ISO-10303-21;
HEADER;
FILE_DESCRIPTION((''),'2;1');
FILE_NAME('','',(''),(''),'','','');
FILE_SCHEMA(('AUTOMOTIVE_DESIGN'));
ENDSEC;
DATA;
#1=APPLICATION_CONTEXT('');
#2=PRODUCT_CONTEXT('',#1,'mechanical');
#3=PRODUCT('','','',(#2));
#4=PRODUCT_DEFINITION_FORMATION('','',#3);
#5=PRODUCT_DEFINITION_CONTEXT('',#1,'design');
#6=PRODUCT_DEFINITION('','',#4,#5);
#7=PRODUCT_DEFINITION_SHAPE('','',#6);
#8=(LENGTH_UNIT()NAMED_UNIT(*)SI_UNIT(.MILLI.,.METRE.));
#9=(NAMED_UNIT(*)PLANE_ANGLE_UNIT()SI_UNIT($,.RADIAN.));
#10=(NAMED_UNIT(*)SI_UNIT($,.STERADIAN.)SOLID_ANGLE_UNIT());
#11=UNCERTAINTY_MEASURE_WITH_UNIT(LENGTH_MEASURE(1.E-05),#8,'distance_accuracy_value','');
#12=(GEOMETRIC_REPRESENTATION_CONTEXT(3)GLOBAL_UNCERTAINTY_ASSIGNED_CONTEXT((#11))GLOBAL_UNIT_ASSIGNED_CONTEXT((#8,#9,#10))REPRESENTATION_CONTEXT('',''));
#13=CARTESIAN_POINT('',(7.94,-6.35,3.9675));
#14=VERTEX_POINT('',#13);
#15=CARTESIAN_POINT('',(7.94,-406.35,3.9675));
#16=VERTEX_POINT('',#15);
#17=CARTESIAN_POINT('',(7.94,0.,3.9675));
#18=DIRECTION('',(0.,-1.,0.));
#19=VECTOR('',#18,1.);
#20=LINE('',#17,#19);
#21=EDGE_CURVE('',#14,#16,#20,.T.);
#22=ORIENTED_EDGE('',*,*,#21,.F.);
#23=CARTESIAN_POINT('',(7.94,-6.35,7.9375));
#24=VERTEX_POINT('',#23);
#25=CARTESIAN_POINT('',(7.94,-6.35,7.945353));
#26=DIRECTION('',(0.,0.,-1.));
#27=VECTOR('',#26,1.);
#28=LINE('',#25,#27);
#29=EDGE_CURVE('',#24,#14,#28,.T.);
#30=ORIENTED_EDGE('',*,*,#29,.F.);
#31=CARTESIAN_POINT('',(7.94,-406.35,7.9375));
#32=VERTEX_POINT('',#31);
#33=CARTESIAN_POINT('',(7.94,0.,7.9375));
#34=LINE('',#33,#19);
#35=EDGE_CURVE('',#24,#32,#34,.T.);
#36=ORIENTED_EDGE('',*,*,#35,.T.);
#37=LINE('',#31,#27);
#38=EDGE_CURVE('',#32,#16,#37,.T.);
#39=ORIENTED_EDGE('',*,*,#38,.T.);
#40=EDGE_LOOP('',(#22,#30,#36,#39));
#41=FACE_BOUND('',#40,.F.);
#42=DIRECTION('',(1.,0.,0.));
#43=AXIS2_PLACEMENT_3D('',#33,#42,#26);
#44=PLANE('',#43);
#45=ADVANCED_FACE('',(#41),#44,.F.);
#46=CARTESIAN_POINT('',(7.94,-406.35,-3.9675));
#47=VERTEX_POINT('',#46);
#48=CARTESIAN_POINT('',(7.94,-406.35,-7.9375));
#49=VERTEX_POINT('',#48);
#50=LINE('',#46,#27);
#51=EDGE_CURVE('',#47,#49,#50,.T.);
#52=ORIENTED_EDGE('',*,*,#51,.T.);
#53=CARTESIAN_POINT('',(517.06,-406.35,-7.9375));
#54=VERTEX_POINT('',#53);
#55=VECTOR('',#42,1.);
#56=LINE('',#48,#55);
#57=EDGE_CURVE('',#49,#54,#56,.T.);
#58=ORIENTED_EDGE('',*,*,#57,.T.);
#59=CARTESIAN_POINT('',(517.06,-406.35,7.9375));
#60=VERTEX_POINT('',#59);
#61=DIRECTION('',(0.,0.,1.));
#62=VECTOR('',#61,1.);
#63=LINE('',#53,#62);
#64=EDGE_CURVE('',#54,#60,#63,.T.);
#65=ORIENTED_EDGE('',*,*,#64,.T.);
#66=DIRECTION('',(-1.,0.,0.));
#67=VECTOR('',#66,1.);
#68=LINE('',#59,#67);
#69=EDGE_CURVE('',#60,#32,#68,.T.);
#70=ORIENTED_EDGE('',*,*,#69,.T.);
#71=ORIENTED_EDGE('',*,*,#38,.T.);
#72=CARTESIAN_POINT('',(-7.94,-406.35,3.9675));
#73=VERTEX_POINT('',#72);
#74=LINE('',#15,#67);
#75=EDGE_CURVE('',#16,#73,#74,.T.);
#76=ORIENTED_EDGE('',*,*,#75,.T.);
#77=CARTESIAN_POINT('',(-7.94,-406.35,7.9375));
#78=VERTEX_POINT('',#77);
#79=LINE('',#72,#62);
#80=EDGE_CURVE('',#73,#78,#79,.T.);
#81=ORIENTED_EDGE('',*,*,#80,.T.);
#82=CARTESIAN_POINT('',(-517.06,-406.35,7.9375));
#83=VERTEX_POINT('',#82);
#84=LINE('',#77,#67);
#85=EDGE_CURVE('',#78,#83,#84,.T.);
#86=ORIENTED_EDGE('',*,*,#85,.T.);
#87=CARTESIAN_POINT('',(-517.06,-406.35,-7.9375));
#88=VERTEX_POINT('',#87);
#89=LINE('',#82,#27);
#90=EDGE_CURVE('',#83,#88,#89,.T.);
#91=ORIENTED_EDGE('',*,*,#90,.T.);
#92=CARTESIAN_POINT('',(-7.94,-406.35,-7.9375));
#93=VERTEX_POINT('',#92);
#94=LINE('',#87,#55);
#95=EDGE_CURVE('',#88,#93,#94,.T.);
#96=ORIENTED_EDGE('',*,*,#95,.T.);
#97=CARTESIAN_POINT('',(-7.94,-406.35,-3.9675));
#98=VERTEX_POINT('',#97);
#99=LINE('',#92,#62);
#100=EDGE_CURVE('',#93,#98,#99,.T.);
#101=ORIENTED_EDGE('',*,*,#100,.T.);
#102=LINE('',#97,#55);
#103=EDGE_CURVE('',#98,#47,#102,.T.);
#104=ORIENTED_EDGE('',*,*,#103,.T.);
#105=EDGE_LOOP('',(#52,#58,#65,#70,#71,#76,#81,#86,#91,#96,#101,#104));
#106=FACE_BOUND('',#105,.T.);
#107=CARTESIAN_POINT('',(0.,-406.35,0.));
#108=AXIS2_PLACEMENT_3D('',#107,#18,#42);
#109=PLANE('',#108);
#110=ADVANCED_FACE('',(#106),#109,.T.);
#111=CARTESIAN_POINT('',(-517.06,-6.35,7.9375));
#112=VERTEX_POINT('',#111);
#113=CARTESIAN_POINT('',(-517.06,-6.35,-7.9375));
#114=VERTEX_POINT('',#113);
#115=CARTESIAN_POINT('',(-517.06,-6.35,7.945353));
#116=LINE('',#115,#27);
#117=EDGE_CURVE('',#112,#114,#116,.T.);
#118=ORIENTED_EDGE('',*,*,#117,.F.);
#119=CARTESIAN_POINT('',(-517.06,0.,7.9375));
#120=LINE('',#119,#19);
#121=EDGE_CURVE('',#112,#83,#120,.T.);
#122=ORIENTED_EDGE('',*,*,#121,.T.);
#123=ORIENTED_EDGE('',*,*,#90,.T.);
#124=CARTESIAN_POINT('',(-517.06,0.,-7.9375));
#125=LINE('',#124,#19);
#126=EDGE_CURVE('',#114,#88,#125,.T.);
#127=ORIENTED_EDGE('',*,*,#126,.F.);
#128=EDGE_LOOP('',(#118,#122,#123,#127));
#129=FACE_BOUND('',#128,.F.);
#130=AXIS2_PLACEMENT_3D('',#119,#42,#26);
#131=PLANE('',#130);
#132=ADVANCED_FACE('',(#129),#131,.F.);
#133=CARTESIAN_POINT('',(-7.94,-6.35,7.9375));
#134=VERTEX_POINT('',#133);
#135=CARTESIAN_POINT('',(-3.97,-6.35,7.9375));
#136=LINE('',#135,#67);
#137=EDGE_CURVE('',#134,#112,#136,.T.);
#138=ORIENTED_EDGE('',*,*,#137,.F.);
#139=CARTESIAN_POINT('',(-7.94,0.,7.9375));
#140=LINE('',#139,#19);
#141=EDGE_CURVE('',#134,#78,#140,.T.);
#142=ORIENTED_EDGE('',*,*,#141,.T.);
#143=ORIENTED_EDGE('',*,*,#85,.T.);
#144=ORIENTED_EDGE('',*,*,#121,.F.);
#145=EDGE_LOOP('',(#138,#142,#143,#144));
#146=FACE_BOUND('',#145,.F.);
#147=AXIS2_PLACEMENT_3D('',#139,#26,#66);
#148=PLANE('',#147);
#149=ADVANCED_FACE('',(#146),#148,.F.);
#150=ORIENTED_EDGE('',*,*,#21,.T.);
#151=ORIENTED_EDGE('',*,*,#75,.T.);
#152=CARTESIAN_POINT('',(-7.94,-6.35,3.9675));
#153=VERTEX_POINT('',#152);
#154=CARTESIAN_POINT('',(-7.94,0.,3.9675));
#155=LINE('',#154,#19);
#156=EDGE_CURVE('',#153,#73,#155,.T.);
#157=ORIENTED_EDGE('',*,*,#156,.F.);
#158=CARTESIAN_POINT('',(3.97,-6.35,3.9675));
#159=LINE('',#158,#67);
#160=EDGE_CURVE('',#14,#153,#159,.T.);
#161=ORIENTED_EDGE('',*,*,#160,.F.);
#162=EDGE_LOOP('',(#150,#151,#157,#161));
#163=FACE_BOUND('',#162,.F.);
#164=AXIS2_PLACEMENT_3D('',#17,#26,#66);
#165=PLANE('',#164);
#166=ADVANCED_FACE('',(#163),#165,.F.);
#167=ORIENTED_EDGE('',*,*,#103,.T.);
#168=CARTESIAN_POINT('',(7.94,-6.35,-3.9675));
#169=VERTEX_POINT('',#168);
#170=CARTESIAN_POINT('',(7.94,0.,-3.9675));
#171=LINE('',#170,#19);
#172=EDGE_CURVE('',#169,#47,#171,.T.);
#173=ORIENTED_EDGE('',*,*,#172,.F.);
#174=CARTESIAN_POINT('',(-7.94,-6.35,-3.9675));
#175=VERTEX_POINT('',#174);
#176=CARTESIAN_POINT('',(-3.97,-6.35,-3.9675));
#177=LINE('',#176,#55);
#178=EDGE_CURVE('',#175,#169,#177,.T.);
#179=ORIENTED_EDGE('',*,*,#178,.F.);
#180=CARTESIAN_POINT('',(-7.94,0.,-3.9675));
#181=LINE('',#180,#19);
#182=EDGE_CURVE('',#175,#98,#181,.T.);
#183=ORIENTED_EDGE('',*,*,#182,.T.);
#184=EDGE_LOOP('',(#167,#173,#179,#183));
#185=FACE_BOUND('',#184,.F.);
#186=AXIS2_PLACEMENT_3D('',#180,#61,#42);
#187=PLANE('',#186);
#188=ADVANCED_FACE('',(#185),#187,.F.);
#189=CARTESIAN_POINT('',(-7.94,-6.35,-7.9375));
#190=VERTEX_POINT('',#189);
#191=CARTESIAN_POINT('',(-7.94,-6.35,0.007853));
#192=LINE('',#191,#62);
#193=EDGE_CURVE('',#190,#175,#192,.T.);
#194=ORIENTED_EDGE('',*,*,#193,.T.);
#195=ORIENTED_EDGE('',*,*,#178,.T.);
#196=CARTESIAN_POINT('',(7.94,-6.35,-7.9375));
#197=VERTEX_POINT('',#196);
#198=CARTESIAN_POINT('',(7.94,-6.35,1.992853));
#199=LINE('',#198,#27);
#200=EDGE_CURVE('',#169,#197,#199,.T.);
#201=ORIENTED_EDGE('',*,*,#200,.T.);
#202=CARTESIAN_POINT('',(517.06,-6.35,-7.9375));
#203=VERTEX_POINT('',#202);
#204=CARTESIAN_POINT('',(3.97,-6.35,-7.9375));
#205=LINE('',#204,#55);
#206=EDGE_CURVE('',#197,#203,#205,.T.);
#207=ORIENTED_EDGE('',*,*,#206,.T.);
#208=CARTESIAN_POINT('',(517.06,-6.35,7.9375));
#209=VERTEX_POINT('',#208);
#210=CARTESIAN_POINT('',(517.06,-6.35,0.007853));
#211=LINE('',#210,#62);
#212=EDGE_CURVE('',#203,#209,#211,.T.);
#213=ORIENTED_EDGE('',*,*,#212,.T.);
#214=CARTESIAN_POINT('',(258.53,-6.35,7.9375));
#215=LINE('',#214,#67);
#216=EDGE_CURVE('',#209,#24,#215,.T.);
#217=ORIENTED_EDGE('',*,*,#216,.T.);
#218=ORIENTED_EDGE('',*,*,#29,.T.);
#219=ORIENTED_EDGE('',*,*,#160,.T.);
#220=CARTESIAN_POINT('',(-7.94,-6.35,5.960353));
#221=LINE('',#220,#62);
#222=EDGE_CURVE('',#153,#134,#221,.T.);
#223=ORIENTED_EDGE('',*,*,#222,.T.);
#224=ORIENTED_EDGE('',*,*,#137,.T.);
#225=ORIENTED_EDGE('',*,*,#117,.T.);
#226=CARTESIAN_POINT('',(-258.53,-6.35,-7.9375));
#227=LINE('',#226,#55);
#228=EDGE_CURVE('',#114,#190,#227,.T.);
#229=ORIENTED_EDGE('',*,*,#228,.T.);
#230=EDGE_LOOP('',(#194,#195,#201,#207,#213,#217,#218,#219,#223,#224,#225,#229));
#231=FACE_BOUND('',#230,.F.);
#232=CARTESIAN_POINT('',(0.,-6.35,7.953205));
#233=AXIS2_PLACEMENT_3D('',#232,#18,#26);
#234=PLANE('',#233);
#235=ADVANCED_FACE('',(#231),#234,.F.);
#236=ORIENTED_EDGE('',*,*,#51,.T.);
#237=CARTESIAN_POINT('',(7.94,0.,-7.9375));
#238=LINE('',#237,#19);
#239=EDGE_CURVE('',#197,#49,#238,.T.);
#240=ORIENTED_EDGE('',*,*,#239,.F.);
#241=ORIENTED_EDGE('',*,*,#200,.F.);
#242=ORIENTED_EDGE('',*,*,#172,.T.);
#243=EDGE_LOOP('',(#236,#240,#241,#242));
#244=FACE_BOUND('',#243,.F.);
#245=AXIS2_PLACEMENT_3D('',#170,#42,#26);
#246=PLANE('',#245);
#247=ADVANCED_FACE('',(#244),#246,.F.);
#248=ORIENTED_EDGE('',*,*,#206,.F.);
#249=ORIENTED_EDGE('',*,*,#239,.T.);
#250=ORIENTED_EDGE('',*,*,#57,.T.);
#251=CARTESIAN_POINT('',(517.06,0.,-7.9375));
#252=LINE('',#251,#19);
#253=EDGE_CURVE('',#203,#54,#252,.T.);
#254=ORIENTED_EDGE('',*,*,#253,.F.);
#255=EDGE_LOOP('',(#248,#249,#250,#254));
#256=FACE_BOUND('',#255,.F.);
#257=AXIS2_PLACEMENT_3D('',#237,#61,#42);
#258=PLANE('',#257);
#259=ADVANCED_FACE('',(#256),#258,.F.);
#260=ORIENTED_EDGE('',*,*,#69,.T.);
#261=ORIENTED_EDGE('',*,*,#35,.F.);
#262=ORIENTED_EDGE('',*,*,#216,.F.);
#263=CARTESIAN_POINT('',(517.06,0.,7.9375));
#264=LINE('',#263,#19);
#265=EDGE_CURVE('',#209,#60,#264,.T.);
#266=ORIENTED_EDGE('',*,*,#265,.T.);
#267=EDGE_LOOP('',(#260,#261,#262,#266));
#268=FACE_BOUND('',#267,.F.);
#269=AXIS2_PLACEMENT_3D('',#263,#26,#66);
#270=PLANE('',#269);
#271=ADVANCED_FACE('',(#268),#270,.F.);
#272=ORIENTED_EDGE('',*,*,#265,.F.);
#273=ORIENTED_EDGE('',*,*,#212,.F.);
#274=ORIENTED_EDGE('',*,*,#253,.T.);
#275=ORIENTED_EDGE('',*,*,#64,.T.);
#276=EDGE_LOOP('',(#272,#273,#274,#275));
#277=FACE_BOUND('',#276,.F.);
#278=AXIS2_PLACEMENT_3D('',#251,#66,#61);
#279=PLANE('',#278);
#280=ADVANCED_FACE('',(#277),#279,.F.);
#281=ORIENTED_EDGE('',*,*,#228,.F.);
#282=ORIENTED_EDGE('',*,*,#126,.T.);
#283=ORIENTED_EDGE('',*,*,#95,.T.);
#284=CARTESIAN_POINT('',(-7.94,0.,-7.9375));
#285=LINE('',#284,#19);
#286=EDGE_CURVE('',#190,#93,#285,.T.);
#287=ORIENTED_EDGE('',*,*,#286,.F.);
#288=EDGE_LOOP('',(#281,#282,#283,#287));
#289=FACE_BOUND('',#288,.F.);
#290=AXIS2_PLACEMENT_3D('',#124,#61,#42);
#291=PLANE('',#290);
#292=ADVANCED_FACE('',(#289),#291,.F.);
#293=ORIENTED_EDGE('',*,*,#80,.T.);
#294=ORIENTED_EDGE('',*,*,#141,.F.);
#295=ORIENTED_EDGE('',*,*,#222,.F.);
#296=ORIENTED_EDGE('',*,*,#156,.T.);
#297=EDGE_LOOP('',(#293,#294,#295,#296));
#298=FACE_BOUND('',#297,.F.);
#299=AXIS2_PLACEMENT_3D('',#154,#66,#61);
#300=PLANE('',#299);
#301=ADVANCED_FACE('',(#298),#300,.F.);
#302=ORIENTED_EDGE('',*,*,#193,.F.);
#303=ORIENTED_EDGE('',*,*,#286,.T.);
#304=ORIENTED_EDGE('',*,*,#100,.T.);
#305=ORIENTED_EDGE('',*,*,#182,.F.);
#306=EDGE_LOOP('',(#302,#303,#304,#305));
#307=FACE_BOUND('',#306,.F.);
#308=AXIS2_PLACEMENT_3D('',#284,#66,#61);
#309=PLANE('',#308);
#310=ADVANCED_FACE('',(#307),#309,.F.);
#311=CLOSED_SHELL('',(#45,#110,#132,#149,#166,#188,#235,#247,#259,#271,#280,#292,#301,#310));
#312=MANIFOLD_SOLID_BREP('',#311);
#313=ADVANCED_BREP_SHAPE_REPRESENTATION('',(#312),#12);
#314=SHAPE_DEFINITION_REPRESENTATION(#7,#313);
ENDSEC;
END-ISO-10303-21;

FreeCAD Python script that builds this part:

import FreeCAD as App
import Part
import Sketcher

V = App.Vector
Q = App.Units.Quantity

doc = App.newDocument("Part")
params = doc.addObject("Spreadsheet::Sheet", "Params")
for row, (alias, value) in enumerate([
    ("sketch1_height", "0.625 in"),
    ("pad1_length", "406.35 mm"),
    ("sketch2_width", "0.25 in"),
    ("pocket1_length", "1050 mm"),
], start=1):
    params.set(f"A{row}", alias)
    params.set(f"B{row}", "=" + value)
    params.setAlias(f"B{row}", alias)

body = doc.addObject("PartDesign::Body", "Body")

sketch1 = body.newObject("Sketcher::SketchObject", "Sketch")
sketch1.AttachmentSupport = (doc.getObject("XZ_Plane"), [""])
sketch1.MapMode = "FlatFace"
sketch1.addGeometry([
    Part.LineSegment(V(517.1, 7.9, 0), V(7.9, 7.9, 0)),
    Part.LineSegment(V(7.9, 7.9, 0), V(7.9, 4, 0)),
    Part.LineSegment(V(7.9, 4, 0), V(-7.9, 4, 0)),
    Part.LineSegment(V(-7.9, 4, 0), V(-7.9, 7.9, 0)),
    Part.LineSegment(V(-7.9, 7.9, 0), V(-517.1, 7.9, 0)),
    Part.LineSegment(V(-517.1, 7.9, 0), V(-517.1, -7.9, 0)),
    Part.LineSegment(V(-517.1, -7.9, 0), V(-7.9, -7.9, 0)),
    Part.LineSegment(V(-7.9, -7.9, 0), V(-7.9, -4, 0)),
    Part.LineSegment(V(-7.9, -4, 0), V(7.9, -4, 0)),
    Part.LineSegment(V(7.9, -4, 0), V(7.9, -7.9, 0)),
    Part.LineSegment(V(7.9, -7.9, 0), V(517.1, -7.9, 0)),
    Part.LineSegment(V(517.1, -7.9, 0), V(517.1, 7.9, 0)),
], False)
sketch1.addConstraint([
    Sketcher.Constraint("Coincident", 0, 2, 1, 1),
    Sketcher.Constraint("Coincident", 1, 2, 2, 1),
    Sketcher.Constraint("Coincident", 2, 2, 3, 1),
    Sketcher.Constraint("Coincident", 3, 2, 4, 1),
    Sketcher.Constraint("Coincident", 4, 2, 5, 1),
    Sketcher.Constraint("Coincident", 5, 2, 6, 1),
    Sketcher.Constraint("Coincident", 6, 2, 7, 1),
    Sketcher.Constraint("Coincident", 7, 2, 8, 1),
    Sketcher.Constraint("Coincident", 8, 2, 9, 1),
    Sketcher.Constraint("Coincident", 9, 2, 10, 1),
    Sketcher.Constraint("Coincident", 10, 2, 11, 1),
    Sketcher.Constraint("Coincident", 11, 2, 0, 1),
    Sketcher.Constraint("Horizontal", 0),
    Sketcher.Constraint("Vertical", 1),
    Sketcher.Constraint("Horizontal", 2),
    Sketcher.Constraint("Vertical", 3),
    Sketcher.Constraint("Horizontal", 4),
    Sketcher.Constraint("Vertical", 5),
    Sketcher.Constraint("Horizontal", 6),
    Sketcher.Constraint("Vertical", 7),
    Sketcher.Constraint("Horizontal", 8),
    Sketcher.Constraint("Vertical", 9),
    Sketcher.Constraint("Horizontal", 10),
    Sketcher.Constraint("Vertical", 11),
    Sketcher.Constraint("Symmetric", 0, 2, 6, 2, -1, 1),
    Sketcher.Constraint("Symmetric", 2, 2, 8, 2, -1, 1),
    Sketcher.Constraint("Symmetric", 4, 2, 10, 2, -1, 1),
    Sketcher.Constraint("Symmetric", 0, 2, 3, 2, -2),
    Sketcher.Constraint("DistanceY", 5, 2, 5, 1, Q("0.625 in")),
    Sketcher.Constraint("DistanceX", 0, 2, 0, 1, 509.12),
    Sketcher.Constraint("DistanceX", 2, 2, 2, 1, 15.88),
    Sketcher.Constraint("DistanceY", 1, 2, 1, 1, 3.97),
])
sketch1.setExpression("Constraints[28]", "Params.sketch1_height")
pad1 = body.newObject("PartDesign::Pad", "Pad")
pad1.Profile = sketch1
pad1.setExpression("Length", "Params.pad1_length")

sketch2 = body.newObject("Sketcher::SketchObject", "Sketch001")
sketch2.AttachmentSupport = (doc.getObject("YZ_Plane"), [""])
sketch2.MapMode = "FlatFace"
sketch2.addGeometry([
    Part.LineSegment(V(-6, -8, 0), V(0, -8, 0)),
    Part.LineSegment(V(0, -8, 0), V(0, 8, 0)),
    Part.LineSegment(V(0, 8, 0), V(-6, 8, 0)),
    Part.LineSegment(V(-6, 8, 0), V(-6, -8, 0)),
], False)
sketch2.addConstraint([
    Sketcher.Constraint("Coincident", 0, 2, 1, 1),
    Sketcher.Constraint("Coincident", 1, 2, 2, 1),
    Sketcher.Constraint("Coincident", 2, 2, 3, 1),
    Sketcher.Constraint("Coincident", 3, 2, 0, 1),
    Sketcher.Constraint("Horizontal", 0),
    Sketcher.Constraint("Vertical", 1),
    Sketcher.Constraint("Horizontal", 2),
    Sketcher.Constraint("Vertical", 3),
    Sketcher.Constraint("Symmetric", 0, 2, 1, 2, -1, 1),
    Sketcher.Constraint("DistanceX", 0, 1, 0, 2, Q("0.25 in")),
    Sketcher.Constraint("DistanceY", 1, 1, 1, 2, 15.90641),
])
sketch2.setExpression("Constraints[9]", "Params.sketch2_width")
pocket1 = body.newObject("PartDesign::Pocket", "Pocket")
pocket1.Profile = sketch2
pocket1.setExpression("Length", "Params.pocket1_length")
pocket1.Midplane = True

doc.recompute()
